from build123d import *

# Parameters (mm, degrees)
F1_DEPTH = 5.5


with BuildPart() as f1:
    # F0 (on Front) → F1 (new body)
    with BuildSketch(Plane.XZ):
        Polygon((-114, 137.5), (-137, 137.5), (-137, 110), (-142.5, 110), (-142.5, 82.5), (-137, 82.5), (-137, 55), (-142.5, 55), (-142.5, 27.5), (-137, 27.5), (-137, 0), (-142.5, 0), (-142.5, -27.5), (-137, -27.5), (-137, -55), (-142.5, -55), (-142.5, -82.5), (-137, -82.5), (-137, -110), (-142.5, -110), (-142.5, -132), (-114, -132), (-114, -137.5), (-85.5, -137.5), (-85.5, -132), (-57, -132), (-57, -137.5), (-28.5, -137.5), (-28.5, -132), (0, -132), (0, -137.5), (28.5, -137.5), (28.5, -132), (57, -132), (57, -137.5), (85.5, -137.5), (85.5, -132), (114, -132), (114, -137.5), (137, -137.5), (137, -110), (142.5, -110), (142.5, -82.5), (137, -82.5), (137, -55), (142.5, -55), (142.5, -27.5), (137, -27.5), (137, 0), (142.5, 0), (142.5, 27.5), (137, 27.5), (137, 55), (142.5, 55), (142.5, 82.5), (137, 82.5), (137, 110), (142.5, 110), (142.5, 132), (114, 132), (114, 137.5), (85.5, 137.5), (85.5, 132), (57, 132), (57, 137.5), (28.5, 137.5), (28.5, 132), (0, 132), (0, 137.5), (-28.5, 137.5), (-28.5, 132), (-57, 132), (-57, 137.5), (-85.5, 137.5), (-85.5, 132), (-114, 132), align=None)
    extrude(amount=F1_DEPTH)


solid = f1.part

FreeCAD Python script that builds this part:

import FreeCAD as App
import Part
import Sketcher
from FreeCAD import Vector
Q = App.Units.Quantity

doc = App.newDocument("Part")
params = doc.addObject("Spreadsheet::Sheet", "Params")
for row, (alias, value) in enumerate([
    ("sketch1_width", "23 mm"),
    ("sketch1_height", "22 mm"),
    ("sketch1_width2", "5.5 mm"),
    ("pad1_length", "5.5 mm"),
], start=1):
    params.set(f"A{row}", alias)
    params.set(f"B{row}", "=" + value)
    params.setAlias(f"B{row}", alias)

body = doc.addObject("PartDesign::Body", "Body")

# Sketch on XZ plane
sketch1 = body.newObject("Sketcher::SketchObject", "Sketch")
sketch1.AttachmentSupport = (doc.getObject("XZ_Plane"), [""])
sketch1.MapMode = "FlatFace"
sketch1.addGeometry(Part.LineSegment(Vector(-114, 138, 0), Vector(-137, 138, 0)), False)
sketch1.addGeometry(Part.LineSegment(Vector(-137, 138, 0), Vector(-137, 110, 0)), False)
sketch1.addGeometry(Part.LineSegment(Vector(-137, 110, 0), Vector(-142, 110, 0)), False)
sketch1.addGeometry(Part.LineSegment(Vector(-142, 110, 0), Vector(-142, 82, 0)), False)
sketch1.addGeometry(Part.LineSegment(Vector(-142, 82, 0), Vector(-137, 82, 0)), False)
sketch1.addGeometry(Part.LineSegment(Vector(-137, 82, 0), Vector(-137, 55, 0)), False)
sketch1.addGeometry(Part.LineSegment(Vector(-137, 55, 0), Vector(-142, 55, 0)), False)
sketch1.addGeometry(Part.LineSegment(Vector(-142, 55, 0), Vector(-142, 28, 0)), False)
sketch1.addGeometry(Part.LineSegment(Vector(-142, 28, 0), Vector(-137, 28, 0)), False)
sketch1.addGeometry(Part.LineSegment(Vector(-137, 28, 0), Vector(-137, 0, 0)), False)
sketch1.addGeometry(Part.LineSegment(Vector(-137, 0, 0), Vector(-142, 0, 0)), False)
sketch1.addGeometry(Part.LineSegment(Vector(-142, 0, 0), Vector(-142, -28, 0)), False)
sketch1.addGeometry(Part.LineSegment(Vector(-142, -28, 0), Vector(-137, -28, 0)), False)
sketch1.addGeometry(Part.LineSegment(Vector(-137, -28, 0), Vector(-137, -55, 0)), False)
sketch1.addGeometry(Part.LineSegment(Vector(-137, -55, 0), Vector(-142, -55, 0)), False)
sketch1.addGeometry(Part.LineSegment(Vector(-142, -55, 0), Vector(-142, -82, 0)), False)
sketch1.addGeometry(Part.LineSegment(Vector(-142, -82, 0), Vector(-137, -82, 0)), False)
sketch1.addGeometry(Part.LineSegment(Vector(-137, -82, 0), Vector(-137, -110, 0)), False)
sketch1.addGeometry(Part.LineSegment(Vector(-137, -110, 0), Vector(-142, -110, 0)), False)
sketch1.addGeometry(Part.LineSegment(Vector(-142, -110, 0), Vector(-142, -132, 0)), False)
sketch1.addGeometry(Part.LineSegment(Vector(-142, -132, 0), Vector(-114, -132, 0)), False)
sketch1.addGeometry(Part.LineSegment(Vector(-114, -132, 0), Vector(-114, -138, 0)), False)
sketch1.addGeometry(Part.LineSegment(Vector(-114, -138, 0), Vector(-86, -138, 0)), False)
sketch1.addGeometry(Part.LineSegment(Vector(-86, -138, 0), Vector(-86, -132, 0)), False)
sketch1.addGeometry(Part.LineSegment(Vector(-86, -132, 0), Vector(-57, -132, 0)), False)
sketch1.addGeometry(Part.LineSegment(Vector(-57, -132, 0), Vector(-57, -138, 0)), False)
sketch1.addGeometry(Part.LineSegment(Vector(-57, -138, 0), Vector(-28, -138, 0)), False)
sketch1.addGeometry(Part.LineSegment(Vector(-28, -138, 0), Vector(-28, -132, 0)), False)
sketch1.addGeometry(Part.LineSegment(Vector(-28, -132, 0), Vector(0, -132, 0)), False)
sketch1.addGeometry(Part.LineSegment(Vector(0, -132, 0), Vector(0, -138, 0)), False)
sketch1.addGeometry(Part.LineSegment(Vector(0, -138, 0), Vector(28, -138, 0)), False)
sketch1.addGeometry(Part.LineSegment(Vector(28, -138, 0), Vector(28, -132, 0)), False)
sketch1.addGeometry(Part.LineSegment(Vector(28, -132, 0), Vector(57, -132, 0)), False)
sketch1.addGeometry(Part.LineSegment(Vector(57, -132, 0), Vector(57, -138, 0)), False)
sketch1.addGeometry(Part.LineSegment(Vector(57, -138, 0), Vector(86, -138, 0)), False)
sketch1.addGeometry(Part.LineSegment(Vector(86, -138, 0), Vector(86, -132, 0)), False)
sketch1.addGeometry(Part.LineSegment(Vector(86, -132, 0), Vector(114, -132, 0)), False)
sketch1.addGeometry(Part.LineSegment(Vector(114, -132, 0), Vector(114, -138, 0)), False)
sketch1.addGeometry(Part.LineSegment(Vector(114, -138, 0), Vector(137, -138, 0)), False)
sketch1.addGeometry(Part.LineSegment(Vector(137, -138, 0), Vector(137, -110, 0)), False)
sketch1.addGeometry(Part.LineSegment(Vector(137, -110, 0), Vector(142, -110, 0)), False)
sketch1.addGeometry(Part.LineSegment(Vector(142, -110, 0), Vector(142, -82, 0)), False)
sketch1.addGeometry(Part.LineSegment(Vector(142, -82, 0), Vector(137, -82, 0)), False)
sketch1.addGeometry(Part.LineSegment(Vector(137, -82, 0), Vector(137, -55, 0)), False)
sketch1.addGeometry(Part.LineSegment(Vector(137, -55, 0), Vector(142, -55, 0)), False)
sketch1.addGeometry(Part.LineSegment(Vector(142, -55, 0), Vector(142, -28, 0)), False)
sketch1.addGeometry(Part.LineSegment(Vector(142, -28, 0), Vector(137, -28, 0)), False)
sketch1.addGeometry(Part.LineSegment(Vector(137, -28, 0), Vector(137, 0, 0)), False)
sketch1.addGeometry(Part.LineSegment(Vector(137, 0, 0), Vector(142, 0, 0)), False)
sketch1.addGeometry(Part.LineSegment(Vector(142, 0, 0), Vector(142, 28, 0)), False)
sketch1.addGeometry(Part.LineSegment(Vector(142, 28, 0), Vector(137, 28, 0)), False)
sketch1.addGeometry(Part.LineSegment(Vector(137, 28, 0), Vector(137, 55, 0)), False)
sketch1.addGeometry(Part.LineSegment(Vector(137, 55, 0), Vector(142, 55, 0)), False)
sketch1.addGeometry(Part.LineSegment(Vector(142, 55, 0), Vector(142, 82, 0)), False)
sketch1.addGeometry(Part.LineSegment(Vector(142, 82, 0), Vector(137, 82, 0)), False)
sketch1.addGeometry(Part.LineSegment(Vector(137, 82, 0), Vector(137, 110, 0)), False)
sketch1.addGeometry(Part.LineSegment(Vector(137, 110, 0), Vector(142, 110, 0)), False)
sketch1.addGeometry(Part.LineSegment(Vector(142, 110, 0), Vector(142, 132, 0)), False)
sketch1.addGeometry(Part.LineSegment(Vector(142, 132, 0), Vector(114, 132, 0)), False)
sketch1.addGeometry(Part.LineSegment(Vector(114, 132, 0), Vector(114, 138, 0)), False)
sketch1.addGeometry(Part.LineSegment(Vector(114, 138, 0), Vector(86, 138, 0)), False)
sketch1.addGeometry(Part.LineSegment(Vector(86, 138, 0), Vector(86, 132, 0)), False)
sketch1.addGeometry(Part.LineSegment(Vector(86, 132, 0), Vector(57, 132, 0)), False)
sketch1.addGeometry(Part.LineSegment(Vector(57, 132, 0), Vector(57, 138, 0)), False)
sketch1.addGeometry(Part.LineSegment(Vector(57, 138, 0), Vector(28, 138, 0)), False)
sketch1.addGeometry(Part.LineSegment(Vector(28, 138, 0), Vector(28, 132, 0)), False)
sketch1.addGeometry(Part.LineSegment(Vector(28, 132, 0), Vector(0, 132, 0)), False)
sketch1.addGeometry(Part.LineSegment(Vector(0, 132, 0), Vector(0, 138, 0)), False)
sketch1.addGeometry(Part.LineSegment(Vector(0, 138, 0), Vector(-28, 138, 0)), False)
sketch1.addGeometry(Part.LineSegment(Vector(-28, 138, 0), Vector(-28, 132, 0)), False)
sketch1.addGeometry(Part.LineSegment(Vector(-28, 132, 0), Vector(-57, 132, 0)), False)
sketch1.addGeometry(Part.LineSegment(Vector(-57, 132, 0), Vector(-57, 138, 0)), False)
sketch1.addGeometry(Part.LineSegment(Vector(-57, 138, 0), Vector(-86, 138, 0)), False)
sketch1.addGeometry(Part.LineSegment(Vector(-86, 138, 0), Vector(-86, 132, 0)), False)
sketch1.addGeometry(Part.LineSegment(Vector(-86, 132, 0), Vector(-114, 132, 0)), False)
sketch1.addGeometry(Part.LineSegment(Vector(-114, 132, 0), Vector(-114, 138, 0)), False)
sketch1.addConstraint(Sketcher.Constraint("Coincident", 0, 2, 1, 1))
sketch1.addConstraint(Sketcher.Constraint("Coincident", 1, 2, 2, 1))
sketch1.addConstraint(Sketcher.Constraint("Coincident", 2, 2, 3, 1))
sketch1.addConstraint(Sketcher.Constraint("Coincident", 3, 2, 4, 1))
sketch1.addConstraint(Sketcher.Constraint("Coincident", 4, 2, 5, 1))
sketch1.addConstraint(Sketcher.Constraint("Coincident", 5, 2, 6, 1))
sketch1.addConstraint(Sketcher.Constraint("Coincident", 6, 2, 7, 1))
sketch1.addConstraint(Sketcher.Constraint("Coincident", 7, 2, 8, 1))
sketch1.addConstraint(Sketcher.Constraint("Coincident", 8, 2, 9, 1))
sketch1.addConstraint(Sketcher.Constraint("Coincident", 9, 2, 10, 1))
sketch1.addConstraint(Sketcher.Constraint("Coincident", 10, 2, 11, 1))
sketch1.addConstraint(Sketcher.Constraint("Coincident", 11, 2, 12, 1))
sketch1.addConstraint(Sketcher.Constraint("Coincident", 12, 2, 13, 1))
sketch1.addConstraint(Sketcher.Constraint("Coincident", 13, 2, 14, 1))
sketch1.addConstraint(Sketcher.Constraint("Coincident", 14, 2, 15, 1))
sketch1.addConstraint(Sketcher.Constraint("Coincident", 15, 2, 16, 1))
sketch1.addConstraint(Sketcher.Constraint("Coincident", 16, 2, 17, 1))
sketch1.addConstraint(Sketcher.Constraint("Coincident", 17, 2, 18, 1))
sketch1.addConstraint(Sketcher.Constraint("Coincident", 18, 2, 19, 1))
sketch1.addConstraint(Sketcher.Constraint("Coincident", 19, 2, 20, 1))
sketch1.addConstraint(Sketcher.Constraint("Coincident", 20, 2, 21, 1))
sketch1.addConstraint(Sketcher.Constraint("Coincident", 21, 2, 22, 1))
sketch1.addConstraint(Sketcher.Constraint("Coincident", 22, 2, 23, 1))
sketch1.addConstraint(Sketcher.Constraint("Coincident", 23, 2, 24, 1))
sketch1.addConstraint(Sketcher.Constraint("Coincident", 24, 2, 25, 1))
sketch1.addConstraint(Sketcher.Constraint("Coincident", 25, 2, 26, 1))
sketch1.addConstraint(Sketcher.Constraint("Coincident", 26, 2, 27, 1))
sketch1.addConstraint(Sketcher.Constraint("Coincident", 27, 2, 28, 1))
sketch1.addConstraint(Sketcher.Constraint("Coincident", 28, 2, 29, 1))
sketch1.addConstraint(Sketcher.Constraint("Coincident", 29, 2, 30, 1))
sketch1.addConstraint(Sketcher.Constraint("Coincident", 30, 2, 31, 1))
sketch1.addConstraint(Sketcher.Constraint("Coincident", 31, 2, 32, 1))
sketch1.addConstraint(Sketcher.Constraint("Coincident", 32, 2, 33, 1))
sketch1.addConstraint(Sketcher.Constraint("Coincident", 33, 2, 34, 1))
sketch1.addConstraint(Sketcher.Constraint("Coincident", 34, 2, 35, 1))
sketch1.addConstraint(Sketcher.Constraint("Coincident", 35, 2, 36, 1))
sketch1.addConstraint(Sketcher.Constraint("Coincident", 36, 2, 37, 1))
sketch1.addConstraint(Sketcher.Constraint("Coincident", 37, 2, 38, 1))
sketch1.addConstraint(Sketcher.Constraint("Coincident", 38, 2, 39, 1))
sketch1.addConstraint(Sketcher.Constraint("Coincident", 39, 2, 40, 1))
sketch1.addConstraint(Sketcher.Constraint("Coincident", 40, 2, 41, 1))
sketch1.addConstraint(Sketcher.Constraint("Coincident", 41, 2, 42, 1))
sketch1.addConstraint(Sketcher.Constraint("Coincident", 42, 2, 43, 1))
sketch1.addConstraint(Sketcher.Constraint("Coincident", 43, 2, 44, 1))
sketch1.addConstraint(Sketcher.Constraint("Coincident", 44, 2, 45, 1))
sketch1.addConstraint(Sketcher.Constraint("Coincident", 45, 2, 46, 1))
sketch1.addConstraint(Sketcher.Constraint("Coincident", 46, 2, 47, 1))
sketch1.addConstraint(Sketcher.Constraint("Coincident", 47, 2, 48, 1))
sketch1.addConstraint(Sketcher.Constraint("Coincident", 48, 2, 49, 1))
sketch1.addConstraint(Sketcher.Constraint("Coincident", 49, 2, 50, 1))
sketch1.addConstraint(Sketcher.Constraint("Coincident", 50, 2, 51, 1))
sketch1.addConstraint(Sketcher.Constraint("Coincident", 51, 2, 52, 1))
sketch1.addConstraint(Sketcher.Constraint("Coincident", 52, 2, 53, 1))
sketch1.addConstraint(Sketcher.Constraint("Coincident", 53, 2, 54, 1))
sketch1.addConstraint(Sketcher.Constraint("Coincident", 54, 2, 55, 1))
sketch1.addConstraint(Sketcher.Constraint("Coincident", 55, 2, 56, 1))
sketch1.addConstraint(Sketcher.Constraint("Coincident", 56, 2, 57, 1))
sketch1.addConstraint(Sketcher.Constraint("Coincident", 57, 2, 58, 1))
sketch1.addConstraint(Sketcher.Constraint("Coincident", 58, 2, 59, 1))
sketch1.addConstraint(Sketcher.Constraint("Coincident", 59, 2, 60, 1))
sketch1.addConstraint(Sketcher.Constraint("Coincident", 60, 2, 61, 1))
sketch1.addConstraint(Sketcher.Constraint("Coincident", 61, 2, 62, 1))
sketch1.addConstraint(Sketcher.Constraint("Coincident", 62, 2, 63, 1))
sketch1.addConstraint(Sketcher.Constraint("Coincident", 63, 2, 64, 1))
sketch1.addConstraint(Sketcher.Constraint("Coincident", 64, 2, 65, 1))
sketch1.addConstraint(Sketcher.Constraint("Coincident", 65, 2, 66, 1))
sketch1.addConstraint(Sketcher.Constraint("Coincident", 66, 2, 67, 1))
sketch1.addConstraint(Sketcher.Constraint("Coincident", 67, 2, 68, 1))
sketch1.addConstraint(Sketcher.Constraint("Coincident", 68, 2, 69, 1))
sketch1.addConstraint(Sketcher.Constraint("Coincident", 69, 2, 70, 1))
sketch1.addConstraint(Sketcher.Constraint("Coincident", 70, 2, 71, 1))
sketch1.addConstraint(Sketcher.Constraint("Coincident", 71, 2, 72, 1))
sketch1.addConstraint(Sketcher.Constraint("Coincident", 72, 2, 73, 1))
sketch1.addConstraint(Sketcher.Constraint("Coincident", 73, 2, 74, 1))
sketch1.addConstraint(Sketcher.Constraint("Coincident", 74, 2, 75, 1))
sketch1.addConstraint(Sketcher.Constraint("Coincident", 75, 2, 0, 1))
sketch1.addConstraint(Sketcher.Constraint("Horizontal", 0))
sketch1.addConstraint(Sketcher.Constraint("Vertical", 1))
sketch1.addConstraint(Sketcher.Constraint("Horizontal", 2))
sketch1.addConstraint(Sketcher.Constraint("Vertical", 3))
sketch1.addConstraint(Sketcher.Constraint("Horizontal", 4))
sketch1.addConstraint(Sketcher.Constraint("Vertical", 5))
sketch1.addConstraint(Sketcher.Constraint("Horizontal", 6))
sketch1.addConstraint(Sketcher.Constraint("Vertical", 7))
sketch1.addConstraint(Sketcher.Constraint("Horizontal", 8))
sketch1.addConstraint(Sketcher.Constraint("Vertical", 9))
sketch1.addConstraint(Sketcher.Constraint("Horizontal", 10))
sketch1.addConstraint(Sketcher.Constraint("Vertical", 11))
sketch1.addConstraint(Sketcher.Constraint("Horizontal", 12))
sketch1.addConstraint(Sketcher.Constraint("Vertical", 13))
sketch1.addConstraint(Sketcher.Constraint("Horizontal", 14))
sketch1.addConstraint(Sketcher.Constraint("Vertical", 15))
sketch1.addConstraint(Sketcher.Constraint("Horizontal", 16))
sketch1.addConstraint(Sketcher.Constraint("Vertical", 17))
sketch1.addConstraint(Sketcher.Constraint("Horizontal", 18))
sketch1.addConstraint(Sketcher.Constraint("Vertical", 19))
sketch1.addConstraint(Sketcher.Constraint("Horizontal", 20))
sketch1.addConstraint(Sketcher.Constraint("Vertical", 21))
sketch1.addConstraint(Sketcher.Constraint("Horizontal", 22))
sketch1.addConstraint(Sketcher.Constraint("Vertical", 23))
sketch1.addConstraint(Sketcher.Constraint("Horizontal", 24))
sketch1.addConstraint(Sketcher.Constraint("Vertical", 25))
sketch1.addConstraint(Sketcher.Constraint("Horizontal", 26))
sketch1.addConstraint(Sketcher.Constraint("Vertical", 27))
sketch1.addConstraint(Sketcher.Constraint("Horizontal", 28))
sketch1.addConstraint(Sketcher.Constraint("Vertical", 29))
sketch1.addConstraint(Sketcher.Constraint("Horizontal", 30))
sketch1.addConstraint(Sketcher.Constraint("Vertical", 31))
sketch1.addConstraint(Sketcher.Constraint("Horizontal", 32))
sketch1.addConstraint(Sketcher.Constraint("Vertical", 33))
sketch1.addConstraint(Sketcher.Constraint("Horizontal", 34))
sketch1.addConstraint(Sketcher.Constraint("Vertical", 35))
sketch1.addConstraint(Sketcher.Constraint("Horizontal", 36))
sketch1.addConstraint(Sketcher.Constraint("Vertical", 37))
sketch1.addConstraint(Sketcher.Constraint("Horizontal", 38))
sketch1.addConstraint(Sketcher.Constraint("Vertical", 39))
sketch1.addConstraint(Sketcher.Constraint("Horizontal", 40))
sketch1.addConstraint(Sketcher.Constraint("Vertical", 41))
sketch1.addConstraint(Sketcher.Constraint("Horizontal", 42))
sketch1.addConstraint(Sketcher.Constraint("Vertical", 43))
sketch1.addConstraint(Sketcher.Constraint("Horizontal", 44))
sketch1.addConstraint(Sketcher.Constraint("Vertical", 45))
sketch1.addConstraint(Sketcher.Constraint("Horizontal", 46))
sketch1.addConstraint(Sketcher.Constraint("Vertical", 47))
sketch1.addConstraint(Sketcher.Constraint("Horizontal", 48))
sketch1.addConstraint(Sketcher.Constraint("Vertical", 49))
sketch1.addConstraint(Sketcher.Constraint("Horizontal", 50))
sketch1.addConstraint(Sketcher.Constraint("Vertical", 51))
sketch1.addConstraint(Sketcher.Constraint("Horizontal", 52))
sketch1.addConstraint(Sketcher.Constraint("Vertical", 53))
sketch1.addConstraint(Sketcher.Constraint("Horizontal", 54))
sketch1.addConstraint(Sketcher.Constraint("Vertical", 55))
sketch1.addConstraint(Sketcher.Constraint("Horizontal", 56))
sketch1.addConstraint(Sketcher.Constraint("Vertical", 57))
sketch1.addConstraint(Sketcher.Constraint("Horizontal", 58))
sketch1.addConstraint(Sketcher.Constraint("Vertical", 59))
sketch1.addConstraint(Sketcher.Constraint("Horizontal", 60))
sketch1.addConstraint(Sketcher.Constraint("Vertical", 61))
sketch1.addConstraint(Sketcher.Constraint("Horizontal", 62))
sketch1.addConstraint(Sketcher.Constraint("Vertical", 63))
sketch1.addConstraint(Sketcher.Constraint("Horizontal", 64))
sketch1.addConstraint(Sketcher.Constraint("Vertical", 65))
sketch1.addConstraint(Sketcher.Constraint("Horizontal", 66))
sketch1.addConstraint(Sketcher.Constraint("Vertical", 67))
sketch1.addConstraint(Sketcher.Constraint("Horizontal", 68))
sketch1.addConstraint(Sketcher.Constraint("Vertical", 69))
sketch1.addConstraint(Sketcher.Constraint("Horizontal", 70))
sketch1.addConstraint(Sketcher.Constraint("Vertical", 71))
sketch1.addConstraint(Sketcher.Constraint("Horizontal", 72))
sketch1.addConstraint(Sketcher.Constraint("Vertical", 73))
sketch1.addConstraint(Sketcher.Constraint("Horizontal", 74))
sketch1.addConstraint(Sketcher.Constraint("Vertical", 75))
sketch1.addConstraint(Sketcher.Constraint("Symmetric", 0, 2, 38, 2, -1, 1))
sketch1.addConstraint(Sketcher.Constraint("Symmetric", 2, 2, 40, 2, -1, 1))
sketch1.addConstraint(Sketcher.Constraint("Symmetric", 4, 2, 42, 2, -1, 1))
sketch1.addConstraint(Sketcher.Constraint("Symmetric", 6, 2, 44, 2, -1, 1))
sketch1.addConstraint(Sketcher.Constraint("Symmetric", 8, 2, 46, 2, -1, 1))
sketch1.addConstraint(Sketcher.Constraint("Symmetric", 10, 2, 48, 2, -1, 1))
sketch1.addConstraint(Sketcher.Constraint("Symmetric", 12, 2, 50, 2, -1, 1))
sketch1.addConstraint(Sketcher.Constraint("Symmetric", 14, 2, 52, 2, -1, 1))
sketch1.addConstraint(Sketcher.Constraint("Symmetric", 16, 2, 54, 2, -1, 1))
sketch1.addConstraint(Sketcher.Constraint("Symmetric", 18, 2, 56, 2, -1, 1))
sketch1.addConstraint(Sketcher.Constraint("Symmetric", 20, 2, 58, 2, -1, 1))
sketch1.addConstraint(Sketcher.Constraint("Symmetric", 22, 2, 60, 2, -1, 1))
sketch1.addConstraint(Sketcher.Constraint("Symmetric", 24, 2, 62, 2, -1, 1))
sketch1.addConstraint(Sketcher.Constraint("Symmetric", 26, 2, 64, 2, -1, 1))
sketch1.addConstraint(Sketcher.Constraint("Symmetric", 28, 2, 66, 2, -1, 1))
sketch1.addConstraint(Sketcher.Constraint("Symmetric", 30, 2, 68, 2, -1, 1))
sketch1.addConstraint(Sketcher.Constraint("Symmetric", 32, 2, 70, 2, -1, 1))
sketch1.addConstraint(Sketcher.Constraint("Symmetric", 34, 2, 72, 2, -1, 1))
sketch1.addConstraint(Sketcher.Constraint("Symmetric", 36, 2, 74, 2, -1, 1))
sketch1.addConstraint(Sketcher.Constraint("Symmetric", 26, 2, 30, 2, -2))
sketch1.addConstraint(Sketcher.Constraint("Symmetric", 24, 2, 32, 2, -2))
sketch1.addConstraint(Sketcher.Constraint("Symmetric", 22, 2, 34, 2, -2))
sketch1.addConstraint(Sketcher.Constraint("Symmetric", 20, 2, 36, 2, -2))
sketch1.addConstraint(Sketcher.Constraint("Symmetric", 17, 2, 39, 2, -2))
sketch1.addConstraint(Sketcher.Constraint("Symmetric", 15, 2, 41, 2, -2))
sketch1.addConstraint(Sketcher.Constraint("Symmetric", 13, 2, 43, 2, -2))
sketch1.addConstraint(Sketcher.Constraint("Symmetric", 11, 2, 45, 2, -2))
sketch1.addConstraint(Sketcher.Constraint("PointOnObject", 9, 2, -1))
sketch1.addConstraint(Sketcher.Constraint("PointOnObject", 28, 2, -2))
sketch1.addConstraint(Sketcher.Constraint("Horizontal", 20, 2, 23, 2))
sketch1.addConstraint(Sketcher.Constraint("Horizontal", 22, 2, 25, 2))
sketch1.addConstraint(Sketcher.Constraint("Horizontal", 24, 2, 27, 2))
sketch1.addConstraint(Sketcher.Constraint("Horizontal", 34, 2, 37, 2))
sketch1.addConstraint(Sketcher.Constraint("Vertical", 1, 2, 4, 2))
sketch1.addConstraint(Sketcher.Constraint("Vertical", 3, 2, 6, 2))
sketch1.addConstraint(Sketcher.Constraint("Vertical", 5, 2, 8, 2))
sketch1.addConstraint(Sketcher.Constraint("Vertical", 15, 2, 18, 2))
sketch1.addConstraint(Sketcher.Constraint("Equal", 20, 22))
sketch1.addConstraint(Sketcher.Constraint("Equal", 22, 24))
sketch1.addConstraint(Sketcher.Constraint("Equal", 24, 26))
sketch1.addConstraint(Sketcher.Constraint("Equal", 26, 28))
sketch1.addConstraint(Sketcher.Constraint("Equal", 1, 3))
sketch1.addConstraint(Sketcher.Constraint("Equal", 3, 5))
sketch1.addConstraint(Sketcher.Constraint("Equal", 5, 7))
sketch1.addConstraint(Sketcher.Constraint("Equal", 7, 9))
sketch1.addConstraint(Sketcher.Constraint("Equal", 56, 21))
sketch1.addConstraint(Sketcher.Constraint("DistanceX", 0, 2, 0, 1, Q("23 mm")))
sketch1.addConstraint(Sketcher.Constraint("DistanceY", 19, 2, 19, 1, Q("22 mm")))
sketch1.addConstraint(Sketcher.Constraint("DistanceX", 2, 2, 2, 1, Q("5.5 mm")))
sketch1.setExpression("Constraints[198]", "Params.sketch1_width")
sketch1.setExpression("Constraints[199]", "Params.sketch1_height")
sketch1.setExpression("Constraints[200]", "Params.sketch1_width2")
pad1 = body.newObject("PartDesign::Pad", "Pad")
pad1.Profile = sketch1
pad1.setExpression("Length", "Params.pad1_length")

doc.recompute()
